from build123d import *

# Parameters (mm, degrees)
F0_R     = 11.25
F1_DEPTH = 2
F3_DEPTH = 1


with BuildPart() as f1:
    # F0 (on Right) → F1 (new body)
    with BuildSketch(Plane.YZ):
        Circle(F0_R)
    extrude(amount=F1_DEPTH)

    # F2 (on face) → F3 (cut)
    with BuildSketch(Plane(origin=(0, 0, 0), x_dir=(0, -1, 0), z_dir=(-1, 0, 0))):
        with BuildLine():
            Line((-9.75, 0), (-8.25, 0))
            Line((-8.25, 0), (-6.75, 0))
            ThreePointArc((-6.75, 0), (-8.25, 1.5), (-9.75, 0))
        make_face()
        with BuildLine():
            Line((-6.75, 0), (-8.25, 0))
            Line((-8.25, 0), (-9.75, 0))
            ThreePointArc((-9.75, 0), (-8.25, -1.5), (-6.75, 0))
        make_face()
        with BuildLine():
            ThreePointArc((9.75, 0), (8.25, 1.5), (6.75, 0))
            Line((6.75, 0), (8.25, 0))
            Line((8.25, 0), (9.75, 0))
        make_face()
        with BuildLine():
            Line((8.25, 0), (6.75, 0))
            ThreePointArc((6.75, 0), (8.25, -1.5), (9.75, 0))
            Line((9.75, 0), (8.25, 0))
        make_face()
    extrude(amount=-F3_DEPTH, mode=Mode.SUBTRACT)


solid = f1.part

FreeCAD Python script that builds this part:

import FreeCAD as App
import Part
import Sketcher

V = App.Vector
Q = App.Units.Quantity

doc = App.newDocument("Part")
body = doc.addObject("PartDesign::Body", "Body")

sketch1 = body.newObject("Sketcher::SketchObject", "Sketch")
sketch1.AttachmentSupport = (doc.getObject("YZ_Plane"), [""])
sketch1.MapMode = "FlatFace"
sketch1.addGeometry(Part.Circle(V(0, 0, 0), V(0, 0, 1), 11), False)
sketch1.addConstraint([
    Sketcher.Constraint("Coincident", 0, 3, -1, 1),
    Sketcher.Constraint("Diameter", 0, Q("22.5 mm")),
])
pad1 = body.newObject("PartDesign::Pad", "Pad")
pad1.Profile = sketch1
pad1.Length = 2

sketch2 = body.newObject("Sketcher::SketchObject", "Sketch001")
sketch2.AttachmentSupport = (doc.getObject("YZ_Plane"), [""])
sketch2.MapMode = "FlatFace"
sketch2.addGeometry([
    Part.Circle(V(8.2, 0, 0), V(0, 0, 1), 1.5),
    Part.Circle(V(-8.2, 0, 0), V(0, 0, 1), 1.5),
], False)
sketch2.addConstraint([
    Sketcher.Constraint("Equal", 0, 1),
    Sketcher.Constraint("Symmetric", 0, 3, 1, 3, -1, 1),
    Sketcher.Constraint("PointOnObject", 0, 3, -1),
    Sketcher.Constraint("Diameter", 0, Q("3 mm")),
    Sketcher.Constraint("DistanceX", 1, 3, 0, 3, Q("16.5 mm")),
])
pocket1 = body.newObject("PartDesign::Pocket", "Pocket")
pocket1.Profile = sketch2
pocket1.Length = 1
pocket1.Reversed = True

doc.recompute()
